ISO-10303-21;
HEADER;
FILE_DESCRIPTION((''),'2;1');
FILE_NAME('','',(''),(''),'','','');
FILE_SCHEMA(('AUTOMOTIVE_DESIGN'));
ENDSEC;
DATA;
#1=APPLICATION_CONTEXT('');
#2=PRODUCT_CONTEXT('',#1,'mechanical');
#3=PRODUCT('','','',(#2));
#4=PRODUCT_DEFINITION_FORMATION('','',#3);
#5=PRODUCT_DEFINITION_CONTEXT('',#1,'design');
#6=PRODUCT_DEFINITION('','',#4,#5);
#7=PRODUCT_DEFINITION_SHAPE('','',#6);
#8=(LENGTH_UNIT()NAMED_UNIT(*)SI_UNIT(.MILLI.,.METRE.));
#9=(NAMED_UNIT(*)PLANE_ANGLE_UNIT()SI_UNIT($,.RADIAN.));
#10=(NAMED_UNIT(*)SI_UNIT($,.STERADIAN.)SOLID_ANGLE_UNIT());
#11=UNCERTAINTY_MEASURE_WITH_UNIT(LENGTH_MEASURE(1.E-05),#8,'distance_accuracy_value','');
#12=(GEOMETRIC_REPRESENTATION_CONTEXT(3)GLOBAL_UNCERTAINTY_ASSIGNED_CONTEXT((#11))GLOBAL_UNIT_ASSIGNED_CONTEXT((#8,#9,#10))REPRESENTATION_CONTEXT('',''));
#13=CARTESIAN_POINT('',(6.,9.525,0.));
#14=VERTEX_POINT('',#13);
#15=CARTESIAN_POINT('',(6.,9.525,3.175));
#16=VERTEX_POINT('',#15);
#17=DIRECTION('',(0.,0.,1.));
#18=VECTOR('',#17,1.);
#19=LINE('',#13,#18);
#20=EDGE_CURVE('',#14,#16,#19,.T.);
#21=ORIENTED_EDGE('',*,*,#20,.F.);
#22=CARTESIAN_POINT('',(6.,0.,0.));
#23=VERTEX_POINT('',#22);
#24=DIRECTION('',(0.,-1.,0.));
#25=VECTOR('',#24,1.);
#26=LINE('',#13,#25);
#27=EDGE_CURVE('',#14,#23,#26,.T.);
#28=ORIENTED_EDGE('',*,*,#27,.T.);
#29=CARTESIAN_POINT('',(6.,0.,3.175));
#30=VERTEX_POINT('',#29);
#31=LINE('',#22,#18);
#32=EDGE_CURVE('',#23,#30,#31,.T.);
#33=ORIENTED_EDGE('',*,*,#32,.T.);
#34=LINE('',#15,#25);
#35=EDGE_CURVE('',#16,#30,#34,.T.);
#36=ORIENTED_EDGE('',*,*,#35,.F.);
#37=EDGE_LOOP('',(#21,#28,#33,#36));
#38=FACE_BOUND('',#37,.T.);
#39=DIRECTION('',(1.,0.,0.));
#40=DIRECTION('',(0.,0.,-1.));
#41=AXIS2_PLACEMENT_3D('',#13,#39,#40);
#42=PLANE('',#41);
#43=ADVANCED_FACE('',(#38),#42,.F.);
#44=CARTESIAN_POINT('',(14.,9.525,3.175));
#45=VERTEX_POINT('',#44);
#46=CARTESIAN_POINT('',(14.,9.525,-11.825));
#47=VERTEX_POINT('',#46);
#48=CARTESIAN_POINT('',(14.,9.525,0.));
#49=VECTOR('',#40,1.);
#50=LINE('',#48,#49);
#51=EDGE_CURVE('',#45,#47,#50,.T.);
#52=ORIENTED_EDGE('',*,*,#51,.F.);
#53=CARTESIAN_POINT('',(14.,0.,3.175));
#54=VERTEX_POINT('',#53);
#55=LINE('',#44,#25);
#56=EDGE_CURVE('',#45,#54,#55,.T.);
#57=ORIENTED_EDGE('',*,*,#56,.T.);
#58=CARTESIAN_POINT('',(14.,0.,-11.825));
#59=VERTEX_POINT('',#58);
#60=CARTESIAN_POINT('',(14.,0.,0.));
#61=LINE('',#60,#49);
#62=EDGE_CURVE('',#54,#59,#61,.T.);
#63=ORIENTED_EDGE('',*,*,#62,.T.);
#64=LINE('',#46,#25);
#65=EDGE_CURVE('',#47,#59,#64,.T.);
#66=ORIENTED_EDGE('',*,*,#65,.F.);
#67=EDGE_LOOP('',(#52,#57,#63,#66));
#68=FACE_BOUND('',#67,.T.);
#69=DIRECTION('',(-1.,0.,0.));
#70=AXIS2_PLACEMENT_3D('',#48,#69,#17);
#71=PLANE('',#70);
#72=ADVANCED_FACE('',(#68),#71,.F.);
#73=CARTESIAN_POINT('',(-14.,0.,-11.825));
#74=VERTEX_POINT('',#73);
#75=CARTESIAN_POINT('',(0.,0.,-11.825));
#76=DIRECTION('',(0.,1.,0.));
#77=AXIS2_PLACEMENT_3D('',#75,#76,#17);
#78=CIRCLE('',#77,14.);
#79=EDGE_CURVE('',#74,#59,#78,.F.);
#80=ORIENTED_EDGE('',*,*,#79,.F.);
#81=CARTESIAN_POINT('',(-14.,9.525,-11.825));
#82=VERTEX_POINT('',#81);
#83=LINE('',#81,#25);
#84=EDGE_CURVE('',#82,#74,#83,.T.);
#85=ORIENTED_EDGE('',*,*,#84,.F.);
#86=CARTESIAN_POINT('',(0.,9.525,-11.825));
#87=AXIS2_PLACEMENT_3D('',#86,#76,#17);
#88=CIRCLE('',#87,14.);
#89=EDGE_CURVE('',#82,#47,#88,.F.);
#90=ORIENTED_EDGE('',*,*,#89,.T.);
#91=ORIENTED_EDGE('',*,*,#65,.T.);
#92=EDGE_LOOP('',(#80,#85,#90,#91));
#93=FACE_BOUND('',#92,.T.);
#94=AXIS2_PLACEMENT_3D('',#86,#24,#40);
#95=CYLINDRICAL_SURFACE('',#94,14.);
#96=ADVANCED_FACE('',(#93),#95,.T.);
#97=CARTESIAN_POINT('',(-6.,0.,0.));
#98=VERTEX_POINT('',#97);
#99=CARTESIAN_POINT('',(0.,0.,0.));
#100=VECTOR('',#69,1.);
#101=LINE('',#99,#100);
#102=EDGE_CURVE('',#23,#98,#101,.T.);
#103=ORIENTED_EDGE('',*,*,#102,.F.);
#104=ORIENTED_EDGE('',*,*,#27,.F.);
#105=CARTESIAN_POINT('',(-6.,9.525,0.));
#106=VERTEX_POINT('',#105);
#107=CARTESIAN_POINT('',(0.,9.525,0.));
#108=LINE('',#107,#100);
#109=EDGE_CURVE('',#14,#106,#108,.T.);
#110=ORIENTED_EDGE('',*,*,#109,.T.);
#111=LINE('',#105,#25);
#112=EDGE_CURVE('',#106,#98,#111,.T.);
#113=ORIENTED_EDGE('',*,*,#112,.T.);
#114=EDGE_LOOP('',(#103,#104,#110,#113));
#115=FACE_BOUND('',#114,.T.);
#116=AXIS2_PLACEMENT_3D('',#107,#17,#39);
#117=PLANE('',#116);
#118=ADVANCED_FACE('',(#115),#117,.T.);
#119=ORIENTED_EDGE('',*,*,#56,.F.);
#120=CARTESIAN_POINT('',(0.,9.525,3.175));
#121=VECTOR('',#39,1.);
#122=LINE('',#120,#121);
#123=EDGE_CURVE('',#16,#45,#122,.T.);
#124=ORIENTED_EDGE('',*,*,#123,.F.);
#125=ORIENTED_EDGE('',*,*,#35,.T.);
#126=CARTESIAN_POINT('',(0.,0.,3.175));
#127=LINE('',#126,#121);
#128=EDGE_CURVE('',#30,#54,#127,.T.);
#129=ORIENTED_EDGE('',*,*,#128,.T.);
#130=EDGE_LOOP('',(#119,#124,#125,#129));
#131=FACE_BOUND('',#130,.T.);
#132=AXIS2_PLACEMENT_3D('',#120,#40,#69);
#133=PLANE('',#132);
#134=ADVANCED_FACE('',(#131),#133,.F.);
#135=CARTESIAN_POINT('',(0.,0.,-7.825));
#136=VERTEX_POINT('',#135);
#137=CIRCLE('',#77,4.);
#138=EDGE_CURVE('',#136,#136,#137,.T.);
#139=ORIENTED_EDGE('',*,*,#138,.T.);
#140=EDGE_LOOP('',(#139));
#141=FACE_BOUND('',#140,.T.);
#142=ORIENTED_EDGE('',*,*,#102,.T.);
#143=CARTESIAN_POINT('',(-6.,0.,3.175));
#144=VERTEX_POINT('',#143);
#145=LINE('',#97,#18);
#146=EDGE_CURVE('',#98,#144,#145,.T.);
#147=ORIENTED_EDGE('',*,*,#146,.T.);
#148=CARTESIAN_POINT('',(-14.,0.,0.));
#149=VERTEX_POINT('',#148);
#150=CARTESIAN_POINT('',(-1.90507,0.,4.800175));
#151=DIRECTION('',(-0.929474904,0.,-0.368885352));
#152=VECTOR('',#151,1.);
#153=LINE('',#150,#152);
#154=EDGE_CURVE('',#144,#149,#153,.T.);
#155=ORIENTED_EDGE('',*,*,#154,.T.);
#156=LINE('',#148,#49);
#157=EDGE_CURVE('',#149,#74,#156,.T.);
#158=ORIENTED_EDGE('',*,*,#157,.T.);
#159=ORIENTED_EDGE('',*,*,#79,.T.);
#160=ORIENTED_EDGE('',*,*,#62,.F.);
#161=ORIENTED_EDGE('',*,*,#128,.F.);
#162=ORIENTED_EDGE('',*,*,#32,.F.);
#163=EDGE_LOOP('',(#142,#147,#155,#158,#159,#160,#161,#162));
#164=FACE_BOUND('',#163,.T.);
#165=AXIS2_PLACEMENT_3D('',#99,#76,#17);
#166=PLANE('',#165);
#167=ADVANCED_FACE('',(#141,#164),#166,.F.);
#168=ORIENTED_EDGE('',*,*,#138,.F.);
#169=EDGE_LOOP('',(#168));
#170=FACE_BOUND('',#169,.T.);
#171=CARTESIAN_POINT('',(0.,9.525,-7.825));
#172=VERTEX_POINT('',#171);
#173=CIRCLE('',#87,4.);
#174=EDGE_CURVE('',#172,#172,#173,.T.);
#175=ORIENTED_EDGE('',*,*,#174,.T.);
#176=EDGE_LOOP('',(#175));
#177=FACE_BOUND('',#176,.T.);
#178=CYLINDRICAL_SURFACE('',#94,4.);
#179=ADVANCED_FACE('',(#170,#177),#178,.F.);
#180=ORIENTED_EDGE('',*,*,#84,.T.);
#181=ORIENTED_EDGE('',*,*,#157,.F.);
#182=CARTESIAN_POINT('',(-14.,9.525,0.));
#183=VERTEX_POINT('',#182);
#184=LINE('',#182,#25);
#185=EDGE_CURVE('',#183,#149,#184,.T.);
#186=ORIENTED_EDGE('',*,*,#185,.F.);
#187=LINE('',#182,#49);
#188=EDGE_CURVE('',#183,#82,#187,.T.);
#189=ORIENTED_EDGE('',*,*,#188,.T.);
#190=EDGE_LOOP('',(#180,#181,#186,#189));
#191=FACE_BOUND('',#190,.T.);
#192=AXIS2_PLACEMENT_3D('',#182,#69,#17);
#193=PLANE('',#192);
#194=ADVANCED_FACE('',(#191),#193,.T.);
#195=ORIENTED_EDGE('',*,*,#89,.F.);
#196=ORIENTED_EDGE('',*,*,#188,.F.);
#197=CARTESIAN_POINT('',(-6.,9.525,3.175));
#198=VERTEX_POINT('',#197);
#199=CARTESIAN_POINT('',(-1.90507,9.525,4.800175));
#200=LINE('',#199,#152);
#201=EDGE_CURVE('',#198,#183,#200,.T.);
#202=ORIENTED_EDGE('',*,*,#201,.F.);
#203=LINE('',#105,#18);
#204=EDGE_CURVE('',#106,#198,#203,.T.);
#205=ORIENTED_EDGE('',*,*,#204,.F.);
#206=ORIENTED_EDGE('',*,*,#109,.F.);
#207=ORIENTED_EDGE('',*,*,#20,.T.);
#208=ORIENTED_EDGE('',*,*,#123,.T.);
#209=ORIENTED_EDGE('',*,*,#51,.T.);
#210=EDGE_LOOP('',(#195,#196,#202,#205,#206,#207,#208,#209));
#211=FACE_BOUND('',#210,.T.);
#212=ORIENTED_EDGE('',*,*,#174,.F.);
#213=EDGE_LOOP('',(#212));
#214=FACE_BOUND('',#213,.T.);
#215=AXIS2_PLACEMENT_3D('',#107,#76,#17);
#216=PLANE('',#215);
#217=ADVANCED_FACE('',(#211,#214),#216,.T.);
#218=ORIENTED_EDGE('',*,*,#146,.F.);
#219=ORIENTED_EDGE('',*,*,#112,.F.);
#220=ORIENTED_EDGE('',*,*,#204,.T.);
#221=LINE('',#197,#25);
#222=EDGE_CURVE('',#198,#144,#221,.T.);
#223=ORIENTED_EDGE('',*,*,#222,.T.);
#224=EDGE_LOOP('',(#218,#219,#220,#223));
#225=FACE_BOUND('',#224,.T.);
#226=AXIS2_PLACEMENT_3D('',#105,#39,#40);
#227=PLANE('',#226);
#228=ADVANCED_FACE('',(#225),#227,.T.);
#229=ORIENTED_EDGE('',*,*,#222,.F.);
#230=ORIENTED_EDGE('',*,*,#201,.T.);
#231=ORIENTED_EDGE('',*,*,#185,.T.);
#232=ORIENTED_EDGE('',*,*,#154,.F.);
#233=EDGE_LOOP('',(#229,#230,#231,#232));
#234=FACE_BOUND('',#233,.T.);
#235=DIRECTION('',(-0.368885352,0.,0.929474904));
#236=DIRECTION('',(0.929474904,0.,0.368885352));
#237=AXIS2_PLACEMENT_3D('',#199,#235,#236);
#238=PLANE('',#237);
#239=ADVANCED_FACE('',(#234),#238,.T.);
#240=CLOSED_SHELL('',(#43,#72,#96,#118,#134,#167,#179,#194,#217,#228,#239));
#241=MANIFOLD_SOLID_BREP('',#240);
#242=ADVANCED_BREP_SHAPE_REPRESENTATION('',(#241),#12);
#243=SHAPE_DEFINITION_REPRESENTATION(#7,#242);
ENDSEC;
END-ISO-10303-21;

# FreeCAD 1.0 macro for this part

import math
import FreeCAD as App
import Part
import Sketcher

doc = App.newDocument("Part")
body = doc.addObject("PartDesign::Body", "Body")

# Sketch on XZ plane
sketch1 = doc.addObject("Sketcher::SketchObject", "Sketch")
body.addObject(sketch1)
sketch1.AttachmentSupport = (doc.XZ_Plane, [""])
sketch1.MapMode = "FlatFace"
sketch1.addGeometry([
    Part.LineSegment(App.Vector(-6, 0, 0), App.Vector(6, 0, 0)),  # 0
    Part.LineSegment(App.Vector(6, 0, 0), App.Vector(6, 3.175, 0)),  # 1
    Part.LineSegment(App.Vector(6, 3.175, 0), App.Vector(14, 3.175, 0)),  # 2
    Part.LineSegment(App.Vector(14, 3.175, 0), App.Vector(14, -11.825, 0)),  # 3
    Part.ArcOfCircle(Part.Circle(App.Vector(0, -11.825, 0), App.Vector(0, 0, 1), 14), math.radians(180), math.radians(360)),  # 4
    Part.LineSegment(App.Vector(-14, -11.825, 0), App.Vector(-14, 0, 0)),  # 5
    Part.LineSegment(App.Vector(-14, 0, 0), App.Vector(-6, 3.175, 0)),  # 6
    Part.LineSegment(App.Vector(-6, 3.175, 0), App.Vector(-6, 0, 0)),  # 7
    Part.Circle(App.Vector(0, -11.825, 0), App.Vector(0, 0, 1), 4),  # 8
], False)
sketch1.addConstraint([
    Sketcher.Constraint("Coincident", 0, 2, 1, 1),
    Sketcher.Constraint("Coincident", 1, 2, 2, 1),
    Sketcher.Constraint("Coincident", 2, 2, 3, 1),
    Sketcher.Constraint("Tangent", 3, 2, 4, 2),
    Sketcher.Constraint("Tangent", 4, 1, 5, 1),
    Sketcher.Constraint("Coincident", 5, 2, 6, 1),
    Sketcher.Constraint("Coincident", 6, 2, 7, 1),
    Sketcher.Constraint("Coincident", 7, 2, 0, 1),
    Sketcher.Constraint("Horizontal", 0),
    Sketcher.Constraint("Vertical", 1),
    Sketcher.Constraint("Horizontal", 2),
    Sketcher.Constraint("Vertical", 3),
    Sketcher.Constraint("Vertical", 5),
    Sketcher.Constraint("Vertical", 7),
    Sketcher.Constraint("Coincident", 8, 3, 4, 3),
    Sketcher.Constraint("Symmetric", 0, 2, 7, 2, -1, 1),
    Sketcher.Constraint("PointOnObject", 4, 3, -2),
    Sketcher.Constraint("PointOnObject", 5, 2, -1),
    Sketcher.Constraint("Horizontal", 2, 2, 6, 2),
    Sketcher.Constraint("Diameter", 8, 8.0),
    Sketcher.Constraint("Radius", 4, 14.0),
    Sketcher.Constraint("DistanceX", 0, 1, 0, 2, 12.0),
    Sketcher.Constraint("DistanceY", 3, 2, 3, 1, 15.0),
    Sketcher.Constraint("DistanceY", 1, 1, 1, 2, 3.175),
])
pad1 = doc.addObject("PartDesign::Pad", "Pad")
body.addObject(pad1)
pad1.Profile = sketch1
pad1.Length = 9.525
pad1.Reversed = True

doc.recompute()
